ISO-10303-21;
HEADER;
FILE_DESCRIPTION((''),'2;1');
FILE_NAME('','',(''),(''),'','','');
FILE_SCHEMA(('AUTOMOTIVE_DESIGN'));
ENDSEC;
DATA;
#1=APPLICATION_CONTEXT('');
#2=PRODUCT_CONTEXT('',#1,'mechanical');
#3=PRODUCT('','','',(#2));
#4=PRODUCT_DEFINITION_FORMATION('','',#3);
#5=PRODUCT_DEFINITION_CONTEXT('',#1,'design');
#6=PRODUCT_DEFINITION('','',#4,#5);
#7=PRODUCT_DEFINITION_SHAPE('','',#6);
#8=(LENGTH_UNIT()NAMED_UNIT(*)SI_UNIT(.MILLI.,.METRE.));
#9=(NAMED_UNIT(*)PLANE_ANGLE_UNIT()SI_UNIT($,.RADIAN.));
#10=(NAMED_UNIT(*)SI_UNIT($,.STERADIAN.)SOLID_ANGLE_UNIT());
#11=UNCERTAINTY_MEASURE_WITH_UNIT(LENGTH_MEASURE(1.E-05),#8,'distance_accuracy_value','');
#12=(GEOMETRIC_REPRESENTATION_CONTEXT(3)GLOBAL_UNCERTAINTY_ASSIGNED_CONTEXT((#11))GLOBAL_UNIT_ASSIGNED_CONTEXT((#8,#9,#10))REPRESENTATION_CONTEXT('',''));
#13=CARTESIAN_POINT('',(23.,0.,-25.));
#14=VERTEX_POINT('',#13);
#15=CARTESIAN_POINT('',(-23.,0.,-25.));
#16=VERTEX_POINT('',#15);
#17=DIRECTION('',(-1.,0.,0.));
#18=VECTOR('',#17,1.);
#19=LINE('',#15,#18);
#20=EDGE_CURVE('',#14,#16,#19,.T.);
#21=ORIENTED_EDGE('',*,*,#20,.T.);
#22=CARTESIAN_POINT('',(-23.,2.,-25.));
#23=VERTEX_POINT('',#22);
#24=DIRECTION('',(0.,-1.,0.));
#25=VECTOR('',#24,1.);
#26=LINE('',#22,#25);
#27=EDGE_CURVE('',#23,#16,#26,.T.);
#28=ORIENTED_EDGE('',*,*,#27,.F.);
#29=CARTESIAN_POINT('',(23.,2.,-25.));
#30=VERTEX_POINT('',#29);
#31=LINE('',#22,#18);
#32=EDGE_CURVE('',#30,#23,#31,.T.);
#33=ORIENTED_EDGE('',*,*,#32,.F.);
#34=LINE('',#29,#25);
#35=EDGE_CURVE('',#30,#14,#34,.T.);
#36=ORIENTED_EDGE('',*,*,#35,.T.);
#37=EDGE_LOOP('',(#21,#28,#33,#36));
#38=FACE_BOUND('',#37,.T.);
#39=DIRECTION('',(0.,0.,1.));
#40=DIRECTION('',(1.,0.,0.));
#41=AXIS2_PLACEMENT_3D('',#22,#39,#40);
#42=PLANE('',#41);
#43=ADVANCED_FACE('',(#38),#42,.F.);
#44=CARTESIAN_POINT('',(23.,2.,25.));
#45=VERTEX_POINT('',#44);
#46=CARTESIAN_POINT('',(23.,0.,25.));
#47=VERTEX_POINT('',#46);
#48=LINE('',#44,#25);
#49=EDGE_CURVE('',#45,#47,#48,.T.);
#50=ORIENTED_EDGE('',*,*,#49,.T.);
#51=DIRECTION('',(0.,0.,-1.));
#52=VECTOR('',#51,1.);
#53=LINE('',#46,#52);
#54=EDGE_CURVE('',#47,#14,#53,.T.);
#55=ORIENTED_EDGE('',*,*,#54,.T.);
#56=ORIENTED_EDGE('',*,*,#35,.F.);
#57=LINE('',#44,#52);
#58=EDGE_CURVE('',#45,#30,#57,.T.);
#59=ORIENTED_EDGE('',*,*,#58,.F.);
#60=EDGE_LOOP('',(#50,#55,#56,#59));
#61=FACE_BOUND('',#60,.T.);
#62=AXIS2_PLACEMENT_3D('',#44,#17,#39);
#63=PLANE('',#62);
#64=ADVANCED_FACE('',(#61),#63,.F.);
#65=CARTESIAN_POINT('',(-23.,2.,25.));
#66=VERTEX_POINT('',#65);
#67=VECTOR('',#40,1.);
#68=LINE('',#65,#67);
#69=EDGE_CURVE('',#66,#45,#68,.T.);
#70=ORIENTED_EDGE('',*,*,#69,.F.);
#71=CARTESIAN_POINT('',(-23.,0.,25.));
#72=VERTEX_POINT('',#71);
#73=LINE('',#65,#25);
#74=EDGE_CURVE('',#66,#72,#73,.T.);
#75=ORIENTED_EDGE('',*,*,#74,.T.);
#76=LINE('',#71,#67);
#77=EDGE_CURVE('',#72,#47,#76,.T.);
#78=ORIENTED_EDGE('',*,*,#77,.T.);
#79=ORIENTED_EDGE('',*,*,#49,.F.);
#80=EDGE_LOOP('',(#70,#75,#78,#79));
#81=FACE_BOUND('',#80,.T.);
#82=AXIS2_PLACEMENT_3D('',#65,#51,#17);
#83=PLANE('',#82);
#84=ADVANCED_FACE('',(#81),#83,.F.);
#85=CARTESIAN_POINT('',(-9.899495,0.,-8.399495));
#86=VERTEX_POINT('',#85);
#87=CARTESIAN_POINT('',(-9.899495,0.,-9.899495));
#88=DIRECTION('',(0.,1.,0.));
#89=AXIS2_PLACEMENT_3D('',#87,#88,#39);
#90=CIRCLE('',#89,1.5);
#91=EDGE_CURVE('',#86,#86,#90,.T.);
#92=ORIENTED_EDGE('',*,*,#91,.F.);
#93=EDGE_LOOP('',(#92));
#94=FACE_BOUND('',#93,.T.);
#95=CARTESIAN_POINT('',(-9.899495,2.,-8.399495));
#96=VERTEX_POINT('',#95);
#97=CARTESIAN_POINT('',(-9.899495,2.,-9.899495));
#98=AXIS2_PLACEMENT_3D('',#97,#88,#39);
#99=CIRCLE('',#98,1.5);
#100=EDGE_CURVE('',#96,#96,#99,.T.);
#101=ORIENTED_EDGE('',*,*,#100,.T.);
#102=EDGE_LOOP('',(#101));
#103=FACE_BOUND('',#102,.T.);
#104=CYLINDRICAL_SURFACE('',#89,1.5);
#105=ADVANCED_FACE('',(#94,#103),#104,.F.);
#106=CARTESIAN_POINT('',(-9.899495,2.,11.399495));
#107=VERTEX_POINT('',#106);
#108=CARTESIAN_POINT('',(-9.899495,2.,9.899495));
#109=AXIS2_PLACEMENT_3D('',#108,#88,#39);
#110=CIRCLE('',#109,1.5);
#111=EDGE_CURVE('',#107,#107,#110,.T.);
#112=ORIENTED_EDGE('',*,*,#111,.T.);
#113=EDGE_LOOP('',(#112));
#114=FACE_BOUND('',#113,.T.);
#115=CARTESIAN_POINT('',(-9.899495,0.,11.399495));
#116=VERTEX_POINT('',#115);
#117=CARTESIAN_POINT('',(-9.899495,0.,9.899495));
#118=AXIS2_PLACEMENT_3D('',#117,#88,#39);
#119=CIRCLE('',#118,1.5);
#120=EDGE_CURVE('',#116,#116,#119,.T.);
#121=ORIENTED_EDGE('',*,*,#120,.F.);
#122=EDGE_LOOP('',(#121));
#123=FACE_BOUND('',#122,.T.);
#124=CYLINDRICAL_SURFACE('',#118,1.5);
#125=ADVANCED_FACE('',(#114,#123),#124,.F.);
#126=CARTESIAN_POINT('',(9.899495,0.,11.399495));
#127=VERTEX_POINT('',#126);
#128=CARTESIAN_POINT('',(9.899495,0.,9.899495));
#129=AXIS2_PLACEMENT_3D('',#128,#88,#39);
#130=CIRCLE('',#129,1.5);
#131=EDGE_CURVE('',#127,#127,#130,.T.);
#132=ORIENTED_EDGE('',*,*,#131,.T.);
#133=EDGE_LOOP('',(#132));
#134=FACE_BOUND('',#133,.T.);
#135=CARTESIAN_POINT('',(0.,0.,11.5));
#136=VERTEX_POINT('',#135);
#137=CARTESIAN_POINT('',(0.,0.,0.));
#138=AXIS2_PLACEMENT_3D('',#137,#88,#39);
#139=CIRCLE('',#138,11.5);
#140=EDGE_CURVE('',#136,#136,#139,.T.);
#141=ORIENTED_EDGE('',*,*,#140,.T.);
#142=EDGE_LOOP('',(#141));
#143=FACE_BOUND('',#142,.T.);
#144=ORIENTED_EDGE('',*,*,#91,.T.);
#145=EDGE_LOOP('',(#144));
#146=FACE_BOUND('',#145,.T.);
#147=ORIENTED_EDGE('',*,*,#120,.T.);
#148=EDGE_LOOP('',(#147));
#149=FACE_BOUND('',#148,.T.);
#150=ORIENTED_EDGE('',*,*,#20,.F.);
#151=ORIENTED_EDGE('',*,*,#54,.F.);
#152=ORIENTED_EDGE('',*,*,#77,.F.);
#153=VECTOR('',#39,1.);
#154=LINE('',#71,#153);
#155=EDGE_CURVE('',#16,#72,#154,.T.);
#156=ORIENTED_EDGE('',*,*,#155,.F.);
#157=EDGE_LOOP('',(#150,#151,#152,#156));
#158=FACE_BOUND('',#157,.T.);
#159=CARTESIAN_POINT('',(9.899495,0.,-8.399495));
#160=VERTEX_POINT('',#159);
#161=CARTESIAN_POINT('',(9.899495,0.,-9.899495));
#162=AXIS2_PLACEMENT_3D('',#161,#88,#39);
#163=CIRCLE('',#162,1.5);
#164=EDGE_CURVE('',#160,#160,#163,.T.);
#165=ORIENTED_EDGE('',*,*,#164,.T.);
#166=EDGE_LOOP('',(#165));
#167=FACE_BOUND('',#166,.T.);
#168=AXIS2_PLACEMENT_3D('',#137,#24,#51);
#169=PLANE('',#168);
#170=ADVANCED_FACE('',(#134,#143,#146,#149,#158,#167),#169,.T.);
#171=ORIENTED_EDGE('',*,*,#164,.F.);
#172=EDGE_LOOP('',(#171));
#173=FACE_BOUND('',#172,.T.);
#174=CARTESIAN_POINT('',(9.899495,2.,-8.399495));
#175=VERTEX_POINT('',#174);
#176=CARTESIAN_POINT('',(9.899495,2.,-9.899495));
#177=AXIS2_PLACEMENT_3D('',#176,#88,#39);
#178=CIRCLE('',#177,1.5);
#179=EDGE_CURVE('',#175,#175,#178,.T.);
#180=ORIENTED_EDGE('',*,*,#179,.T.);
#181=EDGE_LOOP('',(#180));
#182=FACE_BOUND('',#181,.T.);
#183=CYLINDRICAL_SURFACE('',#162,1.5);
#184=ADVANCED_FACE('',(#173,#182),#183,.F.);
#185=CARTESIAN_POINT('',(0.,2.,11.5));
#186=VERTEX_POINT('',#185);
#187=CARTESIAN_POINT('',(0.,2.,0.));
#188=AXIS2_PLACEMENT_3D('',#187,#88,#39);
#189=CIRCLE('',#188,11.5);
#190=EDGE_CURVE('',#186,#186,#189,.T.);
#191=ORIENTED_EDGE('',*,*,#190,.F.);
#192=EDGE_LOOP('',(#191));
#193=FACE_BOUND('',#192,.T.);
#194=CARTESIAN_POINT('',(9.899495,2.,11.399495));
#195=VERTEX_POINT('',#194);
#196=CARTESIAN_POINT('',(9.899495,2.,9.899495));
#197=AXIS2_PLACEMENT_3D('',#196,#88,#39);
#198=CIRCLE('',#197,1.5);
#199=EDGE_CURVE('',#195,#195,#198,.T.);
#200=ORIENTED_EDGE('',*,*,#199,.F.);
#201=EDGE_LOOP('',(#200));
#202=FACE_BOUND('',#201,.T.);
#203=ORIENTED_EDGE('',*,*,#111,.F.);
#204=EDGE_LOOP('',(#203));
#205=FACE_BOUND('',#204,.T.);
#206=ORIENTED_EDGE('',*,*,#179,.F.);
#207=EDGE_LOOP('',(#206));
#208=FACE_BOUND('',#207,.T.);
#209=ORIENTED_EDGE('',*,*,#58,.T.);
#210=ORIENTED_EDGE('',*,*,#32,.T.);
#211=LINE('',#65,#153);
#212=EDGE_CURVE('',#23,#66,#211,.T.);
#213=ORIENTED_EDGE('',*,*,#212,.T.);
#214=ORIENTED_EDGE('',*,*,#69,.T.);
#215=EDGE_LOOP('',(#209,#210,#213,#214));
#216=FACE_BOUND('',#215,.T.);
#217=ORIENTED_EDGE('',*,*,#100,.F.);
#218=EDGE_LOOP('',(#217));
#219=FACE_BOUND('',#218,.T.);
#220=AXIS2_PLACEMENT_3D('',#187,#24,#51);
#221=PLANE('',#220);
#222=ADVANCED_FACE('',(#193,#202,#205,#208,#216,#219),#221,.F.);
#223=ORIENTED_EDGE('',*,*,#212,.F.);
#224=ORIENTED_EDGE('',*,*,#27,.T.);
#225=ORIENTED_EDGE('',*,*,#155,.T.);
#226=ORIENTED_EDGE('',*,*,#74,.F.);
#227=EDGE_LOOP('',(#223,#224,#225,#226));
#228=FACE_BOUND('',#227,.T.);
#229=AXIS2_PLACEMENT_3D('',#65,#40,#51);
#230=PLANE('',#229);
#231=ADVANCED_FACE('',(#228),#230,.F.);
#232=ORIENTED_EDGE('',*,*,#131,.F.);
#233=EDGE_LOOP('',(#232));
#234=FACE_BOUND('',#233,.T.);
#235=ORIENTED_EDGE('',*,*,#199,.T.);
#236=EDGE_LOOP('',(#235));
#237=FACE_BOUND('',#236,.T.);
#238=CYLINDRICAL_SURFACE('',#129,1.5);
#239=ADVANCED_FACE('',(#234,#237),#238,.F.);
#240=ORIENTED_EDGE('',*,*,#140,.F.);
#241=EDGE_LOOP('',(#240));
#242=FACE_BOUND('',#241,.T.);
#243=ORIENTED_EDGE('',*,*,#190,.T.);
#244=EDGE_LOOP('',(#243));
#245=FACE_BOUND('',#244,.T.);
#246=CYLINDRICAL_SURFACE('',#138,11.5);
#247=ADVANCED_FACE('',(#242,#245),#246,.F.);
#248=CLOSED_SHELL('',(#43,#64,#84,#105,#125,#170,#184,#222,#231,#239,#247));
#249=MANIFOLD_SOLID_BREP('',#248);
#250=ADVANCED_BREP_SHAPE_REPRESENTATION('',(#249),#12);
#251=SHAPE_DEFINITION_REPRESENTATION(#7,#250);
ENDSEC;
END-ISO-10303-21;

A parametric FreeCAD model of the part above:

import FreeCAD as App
import Part
import Sketcher
from FreeCAD import Vector
Q = App.Units.Quantity

doc = App.newDocument("Part")
body = doc.addObject("PartDesign::Body", "Body")

# Sketch on XZ plane
sketch1 = body.newObject("Sketcher::SketchObject", "Sketch")
sketch1.AttachmentSupport = (doc.getObject("XZ_Plane"), [""])
sketch1.MapMode = "FlatFace"
sketch1.addGeometry(Part.LineSegment(Vector(-23, -25, 0), Vector(-23, 25, 0)), False)
sketch1.addGeometry(Part.LineSegment(Vector(-23, 25, 0), Vector(23, 25, 0)), False)
sketch1.addGeometry(Part.LineSegment(Vector(23, 25, 0), Vector(23, -25, 0)), False)
sketch1.addGeometry(Part.LineSegment(Vector(23, -25, 0), Vector(-23, -25, 0)), False)
sketch1.addConstraint(Sketcher.Constraint("Coincident", 0, 2, 1, 1))
sketch1.addConstraint(Sketcher.Constraint("Coincident", 1, 2, 2, 1))
sketch1.addConstraint(Sketcher.Constraint("Coincident", 2, 2, 3, 1))
sketch1.addConstraint(Sketcher.Constraint("Coincident", 3, 2, 0, 1))
sketch1.addConstraint(Sketcher.Constraint("Vertical", 0))
sketch1.addConstraint(Sketcher.Constraint("Horizontal", 1))
sketch1.addConstraint(Sketcher.Constraint("Vertical", 2))
sketch1.addConstraint(Sketcher.Constraint("Horizontal", 3))
sketch1.addConstraint(Sketcher.Constraint("Symmetric", 0, 2, 2, 2, -1, 1))
sketch1.addConstraint(Sketcher.Constraint("DistanceX", 1, 1, 1, 2, Q("46 mm")))
sketch1.addConstraint(Sketcher.Constraint("DistanceY", 0, 1, 0, 2, Q("50 mm")))
pad1 = body.newObject("PartDesign::Pad", "Pad")
pad1.Profile = sketch1
pad1.Length = 2
pad1.Reversed = True

# Sketch on XZ plane
sketch2 = body.newObject("Sketcher::SketchObject", "Sketch001")
sketch2.AttachmentSupport = (doc.getObject("XZ_Plane"), [""])
sketch2.MapMode = "FlatFace"
sketch2.AttachmentOffset = App.Placement(Vector(0, 0, -2), App.Rotation())
sketch2.addGeometry(Part.Circle(Vector(0, 0, 0), Vector(0, 0, 1), 12), False)
sketch2.addConstraint(Sketcher.Constraint("Coincident", 0, 3, -1, 1))
sketch2.addConstraint(Sketcher.Constraint("Diameter", 0, Q("23 mm")))
pocket1 = body.newObject("PartDesign::Pocket", "Pocket")
pocket1.Profile = sketch2
pocket1.Type = "ThroughAll"
pocket1.Reversed = True

# Sketch on XZ plane
sketch3 = body.newObject("Sketcher::SketchObject", "Sketch002")
sketch3.AttachmentSupport = (doc.getObject("XZ_Plane"), [""])
sketch3.MapMode = "FlatFace"
sketch3.AttachmentOffset = App.Placement(Vector(0, 0, -2), App.Rotation())
sketch3.addGeometry(Part.Circle(Vector(9.9, -9.9, 0), Vector(0, 0, 1), 1.5), False)
sketch3.addGeometry(Part.Circle(Vector(-9.9, -9.9, 0), Vector(0, 0, 1), 1.5), False)
sketch3.addGeometry(Part.Circle(Vector(-9.9, 9.9, 0), Vector(0, 0, 1), 1.5), False)
sketch3.addGeometry(Part.Circle(Vector(9.9, 9.9, 0), Vector(0, 0, 1), 1.5), False)
sketch3.addConstraint(Sketcher.Constraint("Equal", 0, 1))
sketch3.addConstraint(Sketcher.Constraint("Equal", 1, 2))
sketch3.addConstraint(Sketcher.Constraint("Equal", 2, 3))
sketch3.addConstraint(Sketcher.Constraint("Symmetric", 0, 3, 2, 3, -1, 1))
sketch3.addConstraint(Sketcher.Constraint("Symmetric", 1, 3, 3, 3, -1, 1))
sketch3.addConstraint(Sketcher.Constraint("Symmetric", 0, 3, 1, 3, -2))
sketch3.addConstraint(Sketcher.Constraint("Diameter", 0, Q("3 mm")))
sketch3.addConstraint(Sketcher.Constraint("DistanceX", 1, 3, 0, 3, Q("19.79899 mm")))
sketch3.addConstraint(Sketcher.Constraint("DistanceY", 1, 3, 2, 3, Q("19.79899 mm")))
pocket2 = body.newObject("PartDesign::Pocket", "Pocket001")
pocket2.Profile = sketch3
pocket2.Type = "ThroughAll"
pocket2.Reversed = True

doc.recompute()
